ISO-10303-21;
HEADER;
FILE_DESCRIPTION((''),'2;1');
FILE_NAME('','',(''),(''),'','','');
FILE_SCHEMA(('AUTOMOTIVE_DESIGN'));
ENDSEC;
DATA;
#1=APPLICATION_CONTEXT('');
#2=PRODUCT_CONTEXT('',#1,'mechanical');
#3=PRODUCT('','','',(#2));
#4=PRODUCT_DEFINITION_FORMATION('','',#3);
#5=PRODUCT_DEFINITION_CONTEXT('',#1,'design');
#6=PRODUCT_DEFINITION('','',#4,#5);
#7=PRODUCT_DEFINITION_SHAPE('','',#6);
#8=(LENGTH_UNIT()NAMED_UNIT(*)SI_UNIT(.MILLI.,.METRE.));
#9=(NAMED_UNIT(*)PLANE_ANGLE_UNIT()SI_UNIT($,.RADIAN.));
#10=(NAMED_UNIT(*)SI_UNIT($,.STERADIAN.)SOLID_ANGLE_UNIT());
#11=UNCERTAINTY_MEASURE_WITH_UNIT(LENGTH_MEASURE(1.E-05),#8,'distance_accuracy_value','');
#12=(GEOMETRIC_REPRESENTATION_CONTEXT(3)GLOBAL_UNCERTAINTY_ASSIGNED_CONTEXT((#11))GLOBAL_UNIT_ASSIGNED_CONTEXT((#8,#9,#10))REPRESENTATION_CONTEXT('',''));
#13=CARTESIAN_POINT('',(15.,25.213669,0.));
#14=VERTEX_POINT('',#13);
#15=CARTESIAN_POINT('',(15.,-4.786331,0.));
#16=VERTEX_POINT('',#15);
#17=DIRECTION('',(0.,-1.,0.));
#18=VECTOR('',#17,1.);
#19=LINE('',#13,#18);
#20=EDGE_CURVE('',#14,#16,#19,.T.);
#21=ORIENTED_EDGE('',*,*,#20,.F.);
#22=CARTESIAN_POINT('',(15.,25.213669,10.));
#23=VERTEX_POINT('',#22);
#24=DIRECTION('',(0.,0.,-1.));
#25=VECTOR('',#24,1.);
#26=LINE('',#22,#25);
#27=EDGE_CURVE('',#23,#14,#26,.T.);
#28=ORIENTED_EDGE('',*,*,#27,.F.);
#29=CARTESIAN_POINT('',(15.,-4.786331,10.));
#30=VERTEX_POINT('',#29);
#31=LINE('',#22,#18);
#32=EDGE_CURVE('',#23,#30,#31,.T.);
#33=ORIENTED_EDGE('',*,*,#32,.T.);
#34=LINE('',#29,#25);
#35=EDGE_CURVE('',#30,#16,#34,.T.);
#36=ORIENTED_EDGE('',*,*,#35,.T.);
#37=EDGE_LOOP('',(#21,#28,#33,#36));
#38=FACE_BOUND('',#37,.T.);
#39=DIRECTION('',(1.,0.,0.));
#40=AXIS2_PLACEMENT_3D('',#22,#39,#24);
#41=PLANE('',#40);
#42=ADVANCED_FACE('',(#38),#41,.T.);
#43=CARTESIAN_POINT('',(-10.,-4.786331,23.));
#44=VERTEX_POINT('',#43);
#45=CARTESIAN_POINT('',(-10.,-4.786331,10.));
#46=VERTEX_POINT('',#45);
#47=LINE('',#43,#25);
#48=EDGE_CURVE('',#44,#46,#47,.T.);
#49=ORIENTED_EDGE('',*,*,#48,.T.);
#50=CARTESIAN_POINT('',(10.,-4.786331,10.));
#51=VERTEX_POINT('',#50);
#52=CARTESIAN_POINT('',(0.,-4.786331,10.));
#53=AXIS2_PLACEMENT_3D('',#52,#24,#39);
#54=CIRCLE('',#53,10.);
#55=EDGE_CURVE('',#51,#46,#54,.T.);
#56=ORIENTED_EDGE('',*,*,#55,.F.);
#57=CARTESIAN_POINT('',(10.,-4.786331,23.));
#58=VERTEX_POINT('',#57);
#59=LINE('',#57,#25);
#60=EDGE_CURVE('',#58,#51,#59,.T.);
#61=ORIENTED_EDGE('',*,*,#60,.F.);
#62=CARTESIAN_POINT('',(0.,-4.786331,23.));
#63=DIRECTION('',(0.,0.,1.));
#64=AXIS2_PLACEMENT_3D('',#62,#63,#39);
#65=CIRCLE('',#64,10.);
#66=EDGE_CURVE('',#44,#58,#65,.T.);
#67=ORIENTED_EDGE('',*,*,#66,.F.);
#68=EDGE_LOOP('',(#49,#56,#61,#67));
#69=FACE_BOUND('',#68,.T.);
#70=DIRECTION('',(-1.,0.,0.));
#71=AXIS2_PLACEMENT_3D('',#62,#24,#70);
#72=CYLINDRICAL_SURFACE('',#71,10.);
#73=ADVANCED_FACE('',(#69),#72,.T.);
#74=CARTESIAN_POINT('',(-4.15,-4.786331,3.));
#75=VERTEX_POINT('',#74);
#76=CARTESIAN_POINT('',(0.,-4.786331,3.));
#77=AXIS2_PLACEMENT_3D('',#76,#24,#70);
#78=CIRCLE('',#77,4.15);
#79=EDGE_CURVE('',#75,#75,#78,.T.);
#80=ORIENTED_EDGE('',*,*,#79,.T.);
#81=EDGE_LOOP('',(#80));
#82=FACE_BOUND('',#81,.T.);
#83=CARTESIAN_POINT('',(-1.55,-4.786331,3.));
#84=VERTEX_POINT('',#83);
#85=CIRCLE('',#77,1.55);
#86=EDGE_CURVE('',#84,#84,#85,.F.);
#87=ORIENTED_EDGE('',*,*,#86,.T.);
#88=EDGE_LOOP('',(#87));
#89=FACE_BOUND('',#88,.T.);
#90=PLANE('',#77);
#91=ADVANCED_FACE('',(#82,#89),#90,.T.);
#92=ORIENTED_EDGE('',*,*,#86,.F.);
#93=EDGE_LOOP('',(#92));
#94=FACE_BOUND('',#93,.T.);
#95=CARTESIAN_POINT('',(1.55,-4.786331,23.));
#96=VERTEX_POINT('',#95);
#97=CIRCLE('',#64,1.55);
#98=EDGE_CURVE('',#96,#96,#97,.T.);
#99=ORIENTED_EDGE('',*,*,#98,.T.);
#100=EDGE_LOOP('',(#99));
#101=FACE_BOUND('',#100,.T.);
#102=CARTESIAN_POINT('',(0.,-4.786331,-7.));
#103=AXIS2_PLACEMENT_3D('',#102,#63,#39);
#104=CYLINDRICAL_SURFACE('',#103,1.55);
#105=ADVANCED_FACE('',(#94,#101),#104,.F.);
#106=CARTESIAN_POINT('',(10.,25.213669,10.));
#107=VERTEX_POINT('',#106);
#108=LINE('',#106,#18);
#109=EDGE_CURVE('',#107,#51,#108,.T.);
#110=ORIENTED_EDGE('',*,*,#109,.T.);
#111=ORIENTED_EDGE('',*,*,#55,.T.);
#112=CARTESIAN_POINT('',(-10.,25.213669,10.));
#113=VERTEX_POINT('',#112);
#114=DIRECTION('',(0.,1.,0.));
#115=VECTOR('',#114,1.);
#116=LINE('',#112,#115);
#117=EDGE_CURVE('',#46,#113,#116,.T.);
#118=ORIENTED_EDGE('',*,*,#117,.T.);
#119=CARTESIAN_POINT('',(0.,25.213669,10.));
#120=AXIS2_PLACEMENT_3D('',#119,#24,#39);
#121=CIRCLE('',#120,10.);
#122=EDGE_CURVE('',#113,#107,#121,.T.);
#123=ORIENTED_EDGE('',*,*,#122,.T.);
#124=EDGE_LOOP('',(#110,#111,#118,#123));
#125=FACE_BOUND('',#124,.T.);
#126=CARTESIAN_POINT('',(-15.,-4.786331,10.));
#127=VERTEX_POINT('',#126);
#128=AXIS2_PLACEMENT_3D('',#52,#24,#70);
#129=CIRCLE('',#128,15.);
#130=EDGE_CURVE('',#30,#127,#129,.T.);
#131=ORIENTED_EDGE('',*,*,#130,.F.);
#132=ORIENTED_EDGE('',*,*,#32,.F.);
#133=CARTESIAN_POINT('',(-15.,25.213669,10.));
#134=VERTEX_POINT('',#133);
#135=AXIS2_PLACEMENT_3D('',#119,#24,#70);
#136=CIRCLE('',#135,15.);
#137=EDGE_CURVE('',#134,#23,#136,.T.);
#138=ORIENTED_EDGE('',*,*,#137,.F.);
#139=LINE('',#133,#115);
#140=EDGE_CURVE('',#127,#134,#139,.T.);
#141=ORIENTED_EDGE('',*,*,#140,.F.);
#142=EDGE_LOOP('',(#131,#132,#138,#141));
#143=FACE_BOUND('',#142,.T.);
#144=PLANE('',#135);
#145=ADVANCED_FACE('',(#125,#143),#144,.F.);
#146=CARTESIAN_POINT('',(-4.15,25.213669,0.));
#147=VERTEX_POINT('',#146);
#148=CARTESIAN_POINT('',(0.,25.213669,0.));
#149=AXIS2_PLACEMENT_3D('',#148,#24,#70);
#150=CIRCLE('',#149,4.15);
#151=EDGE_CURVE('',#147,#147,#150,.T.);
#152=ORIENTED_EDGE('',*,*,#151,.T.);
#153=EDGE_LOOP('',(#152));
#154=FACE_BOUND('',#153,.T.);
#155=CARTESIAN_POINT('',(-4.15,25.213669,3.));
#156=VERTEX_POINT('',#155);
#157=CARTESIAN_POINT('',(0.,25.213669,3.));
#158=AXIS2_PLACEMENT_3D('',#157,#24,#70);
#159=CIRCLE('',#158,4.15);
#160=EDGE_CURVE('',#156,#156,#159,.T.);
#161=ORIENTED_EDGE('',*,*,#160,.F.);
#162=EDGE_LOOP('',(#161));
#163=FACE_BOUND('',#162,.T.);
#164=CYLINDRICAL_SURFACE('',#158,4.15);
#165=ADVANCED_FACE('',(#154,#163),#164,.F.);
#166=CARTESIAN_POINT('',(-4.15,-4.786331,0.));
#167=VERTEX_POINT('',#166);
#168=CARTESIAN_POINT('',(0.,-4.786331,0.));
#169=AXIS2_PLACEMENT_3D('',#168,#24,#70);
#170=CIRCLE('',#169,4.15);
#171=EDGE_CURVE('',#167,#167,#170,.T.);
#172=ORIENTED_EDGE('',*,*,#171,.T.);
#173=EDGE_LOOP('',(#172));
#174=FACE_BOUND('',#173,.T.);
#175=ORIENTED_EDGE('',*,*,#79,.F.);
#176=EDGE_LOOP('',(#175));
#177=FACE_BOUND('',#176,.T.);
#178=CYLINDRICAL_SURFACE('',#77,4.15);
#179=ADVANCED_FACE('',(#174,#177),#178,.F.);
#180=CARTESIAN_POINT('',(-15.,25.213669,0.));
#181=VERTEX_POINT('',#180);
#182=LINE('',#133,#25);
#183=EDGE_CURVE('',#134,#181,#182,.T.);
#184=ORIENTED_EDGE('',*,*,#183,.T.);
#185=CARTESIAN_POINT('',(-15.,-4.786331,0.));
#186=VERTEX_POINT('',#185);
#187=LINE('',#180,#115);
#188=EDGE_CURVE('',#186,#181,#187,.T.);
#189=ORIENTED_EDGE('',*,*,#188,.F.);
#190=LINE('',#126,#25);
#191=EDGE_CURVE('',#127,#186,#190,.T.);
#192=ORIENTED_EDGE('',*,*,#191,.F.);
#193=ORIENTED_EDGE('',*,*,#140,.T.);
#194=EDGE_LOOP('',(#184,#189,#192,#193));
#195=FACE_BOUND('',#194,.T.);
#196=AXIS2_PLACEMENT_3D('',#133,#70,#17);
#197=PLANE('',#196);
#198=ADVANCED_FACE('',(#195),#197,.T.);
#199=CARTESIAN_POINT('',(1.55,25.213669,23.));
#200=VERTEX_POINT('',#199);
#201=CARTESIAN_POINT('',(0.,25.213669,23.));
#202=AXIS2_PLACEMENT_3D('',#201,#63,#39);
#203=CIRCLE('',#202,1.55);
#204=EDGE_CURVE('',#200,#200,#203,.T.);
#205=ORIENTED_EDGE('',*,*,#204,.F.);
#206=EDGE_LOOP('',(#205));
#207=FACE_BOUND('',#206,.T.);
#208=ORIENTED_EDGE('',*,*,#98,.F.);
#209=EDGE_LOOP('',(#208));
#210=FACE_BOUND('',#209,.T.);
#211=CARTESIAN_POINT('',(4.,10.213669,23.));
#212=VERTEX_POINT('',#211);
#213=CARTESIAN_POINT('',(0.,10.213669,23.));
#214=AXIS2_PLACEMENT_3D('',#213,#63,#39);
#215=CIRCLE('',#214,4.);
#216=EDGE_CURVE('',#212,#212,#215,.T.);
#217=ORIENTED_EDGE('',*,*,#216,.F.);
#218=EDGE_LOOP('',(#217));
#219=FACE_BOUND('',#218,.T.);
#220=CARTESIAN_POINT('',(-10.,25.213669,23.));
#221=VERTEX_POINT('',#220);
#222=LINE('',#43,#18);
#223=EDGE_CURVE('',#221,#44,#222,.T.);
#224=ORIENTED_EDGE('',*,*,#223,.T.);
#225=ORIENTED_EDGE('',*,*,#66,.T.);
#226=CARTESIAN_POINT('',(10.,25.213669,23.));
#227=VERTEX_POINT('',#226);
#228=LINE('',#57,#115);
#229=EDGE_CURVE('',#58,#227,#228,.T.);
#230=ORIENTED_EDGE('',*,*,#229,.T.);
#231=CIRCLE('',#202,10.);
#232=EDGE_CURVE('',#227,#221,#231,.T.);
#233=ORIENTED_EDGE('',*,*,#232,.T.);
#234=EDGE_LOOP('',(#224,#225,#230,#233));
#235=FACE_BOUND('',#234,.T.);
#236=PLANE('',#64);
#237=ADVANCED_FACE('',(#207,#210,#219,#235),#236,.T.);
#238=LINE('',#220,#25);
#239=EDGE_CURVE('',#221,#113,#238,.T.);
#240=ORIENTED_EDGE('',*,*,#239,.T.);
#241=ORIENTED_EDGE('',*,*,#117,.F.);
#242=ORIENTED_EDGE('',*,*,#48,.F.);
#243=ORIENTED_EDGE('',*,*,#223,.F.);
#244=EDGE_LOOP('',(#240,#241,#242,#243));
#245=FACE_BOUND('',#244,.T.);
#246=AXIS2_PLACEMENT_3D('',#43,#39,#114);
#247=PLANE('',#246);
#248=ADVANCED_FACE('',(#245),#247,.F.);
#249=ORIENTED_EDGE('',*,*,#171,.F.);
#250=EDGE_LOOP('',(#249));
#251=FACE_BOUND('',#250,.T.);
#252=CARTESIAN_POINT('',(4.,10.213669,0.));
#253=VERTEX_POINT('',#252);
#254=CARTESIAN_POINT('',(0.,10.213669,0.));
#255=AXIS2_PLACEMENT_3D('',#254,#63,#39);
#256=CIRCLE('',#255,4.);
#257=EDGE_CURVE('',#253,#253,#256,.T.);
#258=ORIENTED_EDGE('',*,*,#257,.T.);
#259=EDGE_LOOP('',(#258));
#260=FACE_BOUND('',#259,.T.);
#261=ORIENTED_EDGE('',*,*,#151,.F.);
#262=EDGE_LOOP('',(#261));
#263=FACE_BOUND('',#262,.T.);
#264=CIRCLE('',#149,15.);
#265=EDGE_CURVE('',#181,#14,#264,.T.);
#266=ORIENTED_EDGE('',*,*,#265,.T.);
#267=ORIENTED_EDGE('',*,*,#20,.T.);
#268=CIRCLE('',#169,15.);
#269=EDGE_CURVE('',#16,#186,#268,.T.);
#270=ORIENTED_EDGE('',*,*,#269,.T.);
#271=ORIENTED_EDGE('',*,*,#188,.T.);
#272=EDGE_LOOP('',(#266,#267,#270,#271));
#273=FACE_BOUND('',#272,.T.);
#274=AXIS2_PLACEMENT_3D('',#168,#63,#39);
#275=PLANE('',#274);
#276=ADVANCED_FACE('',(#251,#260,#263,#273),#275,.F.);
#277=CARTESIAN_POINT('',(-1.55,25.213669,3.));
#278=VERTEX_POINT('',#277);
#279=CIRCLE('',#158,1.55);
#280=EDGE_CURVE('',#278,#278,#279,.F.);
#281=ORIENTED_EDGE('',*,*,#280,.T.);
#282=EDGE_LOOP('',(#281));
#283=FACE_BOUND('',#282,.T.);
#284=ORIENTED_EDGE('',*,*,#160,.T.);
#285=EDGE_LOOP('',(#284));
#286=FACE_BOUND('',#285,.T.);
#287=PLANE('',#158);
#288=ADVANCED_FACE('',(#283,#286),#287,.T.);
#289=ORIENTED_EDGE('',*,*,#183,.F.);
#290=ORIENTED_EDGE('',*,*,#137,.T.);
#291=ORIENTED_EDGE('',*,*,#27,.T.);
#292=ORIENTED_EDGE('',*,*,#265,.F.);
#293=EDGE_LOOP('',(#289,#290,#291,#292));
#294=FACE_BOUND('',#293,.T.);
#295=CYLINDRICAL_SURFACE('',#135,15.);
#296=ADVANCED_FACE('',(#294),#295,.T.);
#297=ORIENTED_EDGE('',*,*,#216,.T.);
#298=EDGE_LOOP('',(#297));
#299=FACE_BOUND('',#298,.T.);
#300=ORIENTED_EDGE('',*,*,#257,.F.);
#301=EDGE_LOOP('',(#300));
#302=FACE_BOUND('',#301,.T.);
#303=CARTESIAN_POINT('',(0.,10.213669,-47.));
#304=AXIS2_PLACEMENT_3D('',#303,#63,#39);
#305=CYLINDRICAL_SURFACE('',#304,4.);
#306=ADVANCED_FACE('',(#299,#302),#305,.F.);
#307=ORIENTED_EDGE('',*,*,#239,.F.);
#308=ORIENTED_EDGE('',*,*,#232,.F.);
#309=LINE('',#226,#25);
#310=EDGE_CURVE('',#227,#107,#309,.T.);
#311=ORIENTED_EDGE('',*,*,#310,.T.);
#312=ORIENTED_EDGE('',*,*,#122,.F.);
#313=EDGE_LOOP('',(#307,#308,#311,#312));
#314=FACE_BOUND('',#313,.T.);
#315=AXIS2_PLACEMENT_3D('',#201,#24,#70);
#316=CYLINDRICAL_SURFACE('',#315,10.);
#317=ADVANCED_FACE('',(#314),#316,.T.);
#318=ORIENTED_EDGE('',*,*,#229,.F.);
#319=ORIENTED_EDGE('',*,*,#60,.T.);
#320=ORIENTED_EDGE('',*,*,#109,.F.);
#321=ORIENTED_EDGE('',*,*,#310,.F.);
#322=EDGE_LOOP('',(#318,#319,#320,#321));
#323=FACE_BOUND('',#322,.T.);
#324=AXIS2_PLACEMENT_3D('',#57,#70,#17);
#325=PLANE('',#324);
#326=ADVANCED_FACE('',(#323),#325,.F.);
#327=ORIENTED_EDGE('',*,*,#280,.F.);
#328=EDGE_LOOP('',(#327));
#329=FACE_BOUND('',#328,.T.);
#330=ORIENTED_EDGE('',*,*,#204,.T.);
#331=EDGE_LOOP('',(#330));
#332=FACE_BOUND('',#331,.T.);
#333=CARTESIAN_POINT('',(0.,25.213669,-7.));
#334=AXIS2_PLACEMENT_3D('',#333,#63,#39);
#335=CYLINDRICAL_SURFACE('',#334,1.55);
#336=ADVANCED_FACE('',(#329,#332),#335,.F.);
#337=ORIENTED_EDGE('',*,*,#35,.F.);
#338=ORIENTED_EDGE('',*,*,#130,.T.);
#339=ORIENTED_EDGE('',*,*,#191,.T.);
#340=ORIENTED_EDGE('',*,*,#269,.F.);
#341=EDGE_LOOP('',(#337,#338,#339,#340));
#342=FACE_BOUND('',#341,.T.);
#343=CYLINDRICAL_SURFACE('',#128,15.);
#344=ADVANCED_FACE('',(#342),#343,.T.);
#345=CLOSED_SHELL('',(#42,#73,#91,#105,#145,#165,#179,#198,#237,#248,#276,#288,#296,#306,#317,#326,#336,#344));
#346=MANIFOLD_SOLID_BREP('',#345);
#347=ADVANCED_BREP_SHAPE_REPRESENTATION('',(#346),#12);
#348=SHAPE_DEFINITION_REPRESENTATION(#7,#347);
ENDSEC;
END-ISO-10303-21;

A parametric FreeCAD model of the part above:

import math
import FreeCAD as App
import Part
import Sketcher

doc = App.newDocument("Part")
body = doc.addObject("PartDesign::Body", "Body")

# Sketch on XY plane
sketch1 = doc.addObject("Sketcher::SketchObject", "Sketch")
body.addObject(sketch1)
sketch1.AttachmentSupport = (doc.XY_Plane, [""])
sketch1.MapMode = "FlatFace"
sketch1.addGeometry(Part.LineSegment(App.Vector(-10, 25, 0), App.Vector(-10, -5, 0)), False)
sketch1.addGeometry(Part.ArcOfCircle(Part.Circle(App.Vector(0, -5, 0), App.Vector(0, 0, 1), 10), math.radians(180), math.radians(360)), False)
sketch1.addGeometry(Part.LineSegment(App.Vector(10, -5, 0), App.Vector(10, 25, 0)), False)
sketch1.addGeometry(Part.ArcOfCircle(Part.Circle(App.Vector(0, 25, 0), App.Vector(0, 0, 1), 10), math.radians(0), math.radians(180)), False)
sketch1.addConstraint(Sketcher.Constraint("Tangent", 0, 2, 1, 1))
sketch1.addConstraint(Sketcher.Constraint("Tangent", 1, 2, 2, 1))
sketch1.addConstraint(Sketcher.Constraint("Tangent", 2, 2, 3, 1))
sketch1.addConstraint(Sketcher.Constraint("Tangent", 3, 2, 0, 1))
sketch1.addConstraint(Sketcher.Constraint("Vertical", 0))
sketch1.addConstraint(Sketcher.Constraint("Vertical", 2))
sketch1.addConstraint(Sketcher.Constraint("PointOnObject", 1, 3, -2))
sketch1.addConstraint(Sketcher.Constraint("Radius", 1, 10.0))
sketch1.addConstraint(Sketcher.Constraint("DistanceY", 0, 2, 0, 1, 30.0))
sketch1.addConstraint(Sketcher.Constraint("DistanceY", 1, 3, -1, 1, 4.786331))
pad1 = doc.addObject("PartDesign::Pad", "Pad")
body.addObject(pad1)
pad1.Profile = sketch1
pad1.Length = 23

# Sketch on XY plane
sketch2 = doc.addObject("Sketcher::SketchObject", "Sketch001")
body.addObject(sketch2)
sketch2.AttachmentSupport = (doc.XY_Plane, [""])
sketch2.MapMode = "FlatFace"
sketch2.AttachmentOffset = App.Placement(App.Vector(0, 0, 23), App.Rotation())
sketch2.addGeometry(Part.Circle(App.Vector(0, 25.2, 0), App.Vector(0, 0, 1), 1.6), False)
sketch2.addGeometry(Part.Circle(App.Vector(0, -4.8, 0), App.Vector(0, 0, 1), 1.6), False)
sketch2.addConstraint(Sketcher.Constraint("Equal", 0, 1))
sketch2.addConstraint(Sketcher.Constraint("PointOnObject", 0, 3, -2))
sketch2.addConstraint(Sketcher.Constraint("PointOnObject", 1, 3, -2))
sketch2.addConstraint(Sketcher.Constraint("Diameter", 0, 3.1))
sketch2.addConstraint(Sketcher.Constraint("DistanceY", 1, 3, 0, 3, 30.0))
sketch2.addConstraint(Sketcher.Constraint("DistanceY", -1, 1, 0, 3, 25.213669))
pocket1 = doc.addObject("PartDesign::Pocket", "Pocket")
body.addObject(pocket1)
pocket1.Profile = sketch2
pocket1.Length = 30

# Sketch on XY plane
sketch3 = doc.addObject("Sketcher::SketchObject", "Sketch002")
body.addObject(sketch3)
sketch3.AttachmentSupport = (doc.XY_Plane, [""])
sketch3.MapMode = "FlatFace"
sketch3.addGeometry(Part.LineSegment(App.Vector(15, 25, 0), App.Vector(15, -5, 0)), False)
sketch3.addGeometry(Part.ArcOfCircle(Part.Circle(App.Vector(0, -5, 0), App.Vector(0, 0, 1), 15), math.radians(180), math.radians(360)), False)
sketch3.addGeometry(Part.LineSegment(App.Vector(-15, -5, 0), App.Vector(-15, 25, 0)), False)
sketch3.addGeometry(Part.ArcOfCircle(Part.Circle(App.Vector(0, 25, 0), App.Vector(0, 0, 1), 15), math.radians(0), math.radians(180)), False)
sketch3.addGeometry(Part.LineSegment(App.Vector(10, -5, 0), App.Vector(10, 25, 0)), False)
sketch3.addGeometry(Part.ArcOfCircle(Part.Circle(App.Vector(0, 25, 0), App.Vector(0, 0, 1), 10), math.radians(0), math.radians(180)), False)
sketch3.addGeometry(Part.LineSegment(App.Vector(-10, 25, 0), App.Vector(-10, -5, 0)), False)
sketch3.addGeometry(Part.ArcOfCircle(Part.Circle(App.Vector(0, -5, 0), App.Vector(0, 0, 1), 10), math.radians(180), math.radians(360)), False)
sketch3.addConstraint(Sketcher.Constraint("Tangent", 0, 2, 1, 2))
sketch3.addConstraint(Sketcher.Constraint("Tangent", 1, 1, 2, 1))
sketch3.addConstraint(Sketcher.Constraint("Tangent", 2, 2, 3, 2))
sketch3.addConstraint(Sketcher.Constraint("Tangent", 3, 1, 0, 1))
sketch3.addConstraint(Sketcher.Constraint("Tangent", 4, 2, 5, 1))
sketch3.addConstraint(Sketcher.Constraint("Tangent", 5, 2, 6, 1))
sketch3.addConstraint(Sketcher.Constraint("Tangent", 6, 2, 7, 1))
sketch3.addConstraint(Sketcher.Constraint("Tangent", 7, 2, 4, 1))
sketch3.addConstraint(Sketcher.Constraint("Vertical", 0))
sketch3.addConstraint(Sketcher.Constraint("Vertical", 2))
sketch3.addConstraint(Sketcher.Constraint("Vertical", 4))
sketch3.addConstraint(Sketcher.Constraint("Vertical", 6))
sketch3.addConstraint(Sketcher.Constraint("Coincident", 5, 3, 3, 3))
sketch3.addConstraint(Sketcher.Constraint("PointOnObject", 1, 3, -2))
sketch3.addConstraint(Sketcher.Constraint("Horizontal", 7, 3, 0, 2))
sketch3.addConstraint(Sketcher.Constraint("Radius", 1, 15.0))
sketch3.addConstraint(Sketcher.Constraint("Radius", 5, 10.0))
sketch3.addConstraint(Sketcher.Constraint("DistanceY", 0, 2, 0, 1, 30.0))
sketch3.addConstraint(Sketcher.Constraint("DistanceY", 1, 3, -1, 1, 4.786331))
pad2 = doc.addObject("PartDesign::Pad", "Pad001")
body.addObject(pad2)
pad2.Profile = sketch3
pad2.Length = 10

# Sketch on XY plane
sketch4 = doc.addObject("Sketcher::SketchObject", "Sketch003")
body.addObject(sketch4)
sketch4.AttachmentSupport = (doc.XY_Plane, [""])
sketch4.MapMode = "FlatFace"
sketch4.AttachmentOffset = App.Placement(App.Vector(0, 0, 23), App.Rotation())
sketch4.addGeometry(Part.Circle(App.Vector(0, 10.2, 0), App.Vector(0, 0, 1), 4), False)
sketch4.addConstraint(Sketcher.Constraint("PointOnObject", 0, 3, -2))
sketch4.addConstraint(Sketcher.Constraint("Diameter", 0, 8.0))
sketch4.addConstraint(Sketcher.Constraint("DistanceY", -1, 1, 0, 3, 10.213669))
pocket2 = doc.addObject("PartDesign::Pocket", "Pocket001")
body.addObject(pocket2)
pocket2.Profile = sketch4
pocket2.Length = 70

# Sketch on XY plane
sketch5 = doc.addObject("Sketcher::SketchObject", "Sketch004")
body.addObject(sketch5)
sketch5.AttachmentSupport = (doc.XY_Plane, [""])
sketch5.MapMode = "FlatFace"
sketch5.addGeometry(Part.Circle(App.Vector(0, 25.2, 0), App.Vector(0, 0, 1), 4.2), False)
sketch5.addGeometry(Part.Circle(App.Vector(0, -4.8, 0), App.Vector(0, 0, 1), 4.2), False)
sketch5.addConstraint(Sketcher.Constraint("Equal", 0, 1))
sketch5.addConstraint(Sketcher.Constraint("PointOnObject", 0, 3, -2))
sketch5.addConstraint(Sketcher.Constraint("PointOnObject", 1, 3, -2))
sketch5.addConstraint(Sketcher.Constraint("Diameter", 0, 8.3))
sketch5.addConstraint(Sketcher.Constraint("DistanceY", 1, 3, 0, 3, 30.0))
sketch5.addConstraint(Sketcher.Constraint("DistanceY", -1, 1, 0, 3, 25.213669))
pocket3 = doc.addObject("PartDesign::Pocket", "Pocket002")
body.addObject(pocket3)
pocket3.Profile = sketch5
pocket3.Length = 3
pocket3.Reversed = True

doc.recompute()
